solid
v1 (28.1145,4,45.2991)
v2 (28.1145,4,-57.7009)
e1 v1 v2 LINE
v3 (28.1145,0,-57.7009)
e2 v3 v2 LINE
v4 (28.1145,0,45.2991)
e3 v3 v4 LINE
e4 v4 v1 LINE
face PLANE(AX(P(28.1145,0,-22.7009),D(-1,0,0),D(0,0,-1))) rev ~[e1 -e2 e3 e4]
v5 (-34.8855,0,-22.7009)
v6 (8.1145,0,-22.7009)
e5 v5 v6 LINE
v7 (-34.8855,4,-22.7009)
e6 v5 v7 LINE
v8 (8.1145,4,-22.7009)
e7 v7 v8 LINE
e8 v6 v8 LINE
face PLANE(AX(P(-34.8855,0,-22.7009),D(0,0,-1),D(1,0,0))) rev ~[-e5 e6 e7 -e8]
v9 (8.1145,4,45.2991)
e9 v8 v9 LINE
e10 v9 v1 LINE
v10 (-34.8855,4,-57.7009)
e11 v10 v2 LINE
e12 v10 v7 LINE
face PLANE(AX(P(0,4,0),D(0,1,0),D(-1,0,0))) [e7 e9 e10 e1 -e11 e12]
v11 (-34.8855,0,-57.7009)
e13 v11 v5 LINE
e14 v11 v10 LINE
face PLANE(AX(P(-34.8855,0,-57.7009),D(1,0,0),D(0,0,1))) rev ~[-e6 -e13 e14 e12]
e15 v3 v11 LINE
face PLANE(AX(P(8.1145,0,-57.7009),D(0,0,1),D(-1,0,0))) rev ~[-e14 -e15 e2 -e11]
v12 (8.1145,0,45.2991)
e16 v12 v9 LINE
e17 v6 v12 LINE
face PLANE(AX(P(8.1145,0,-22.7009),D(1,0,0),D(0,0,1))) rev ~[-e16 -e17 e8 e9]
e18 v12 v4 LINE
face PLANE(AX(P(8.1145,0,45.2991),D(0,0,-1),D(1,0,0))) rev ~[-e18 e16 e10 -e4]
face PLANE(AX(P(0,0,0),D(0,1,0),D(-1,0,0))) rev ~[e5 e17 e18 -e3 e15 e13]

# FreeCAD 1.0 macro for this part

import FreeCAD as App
import Part
import Sketcher

V = App.Vector


def add_polygon(sketch, points):
    """Adds a closed chain of lines whose ends are joined by coincident constraints."""
    first, n = sketch.GeometryCount, len(points)
    for a, b in zip(points, points[1:] + points[:1]):
        sketch.addGeometry(Part.LineSegment(App.Vector(*a, 0), App.Vector(*b, 0)), False)
    for i in range(n):
        sketch.addConstraint(Sketcher.Constraint("Coincident", first + i, 2, first + (i + 1) % n, 1))

doc = App.newDocument("Part")
body = doc.addObject("PartDesign::Body", "Body")

sketch1 = doc.addObject("Sketcher::SketchObject", "Sketch")
body.addObject(sketch1)
sketch1.AttachmentSupport = (doc.XZ_Plane, [""])
sketch1.MapMode = "FlatFace"
add_polygon(sketch1, [(-35, -58), (-35, -23), (8, -23), (8, 45), (28, 45), (28, -58)])
sketch1.addConstraint([
    Sketcher.Constraint("Vertical", 0),
    Sketcher.Constraint("Horizontal", 1),
    Sketcher.Constraint("Vertical", 2),
    Sketcher.Constraint("Horizontal", 3),
    Sketcher.Constraint("Vertical", 4),
    Sketcher.Constraint("Horizontal", 5),
    Sketcher.Constraint("DistanceX", 3, 1, 3, 2, 20.0),
    Sketcher.Constraint("DistanceX", 5, 2, 5, 1, 63.0),
    Sketcher.Constraint("DistanceY", 0, 1, 0, 2, 35.0),
    Sketcher.Constraint("DistanceY", 4, 2, 4, 1, 103.0),
    Sketcher.Constraint("DistanceY", 0, 2, -1, 1, 22.701),
    Sketcher.Constraint("DistanceX", 0, 2, -1, 1, 34.8855),
])
pad1 = doc.addObject("PartDesign::Pad", "Pad")
body.addObject(pad1)
pad1.Profile = sketch1
pad1.Length = 4
pad1.Reversed = True

doc.recompute()
